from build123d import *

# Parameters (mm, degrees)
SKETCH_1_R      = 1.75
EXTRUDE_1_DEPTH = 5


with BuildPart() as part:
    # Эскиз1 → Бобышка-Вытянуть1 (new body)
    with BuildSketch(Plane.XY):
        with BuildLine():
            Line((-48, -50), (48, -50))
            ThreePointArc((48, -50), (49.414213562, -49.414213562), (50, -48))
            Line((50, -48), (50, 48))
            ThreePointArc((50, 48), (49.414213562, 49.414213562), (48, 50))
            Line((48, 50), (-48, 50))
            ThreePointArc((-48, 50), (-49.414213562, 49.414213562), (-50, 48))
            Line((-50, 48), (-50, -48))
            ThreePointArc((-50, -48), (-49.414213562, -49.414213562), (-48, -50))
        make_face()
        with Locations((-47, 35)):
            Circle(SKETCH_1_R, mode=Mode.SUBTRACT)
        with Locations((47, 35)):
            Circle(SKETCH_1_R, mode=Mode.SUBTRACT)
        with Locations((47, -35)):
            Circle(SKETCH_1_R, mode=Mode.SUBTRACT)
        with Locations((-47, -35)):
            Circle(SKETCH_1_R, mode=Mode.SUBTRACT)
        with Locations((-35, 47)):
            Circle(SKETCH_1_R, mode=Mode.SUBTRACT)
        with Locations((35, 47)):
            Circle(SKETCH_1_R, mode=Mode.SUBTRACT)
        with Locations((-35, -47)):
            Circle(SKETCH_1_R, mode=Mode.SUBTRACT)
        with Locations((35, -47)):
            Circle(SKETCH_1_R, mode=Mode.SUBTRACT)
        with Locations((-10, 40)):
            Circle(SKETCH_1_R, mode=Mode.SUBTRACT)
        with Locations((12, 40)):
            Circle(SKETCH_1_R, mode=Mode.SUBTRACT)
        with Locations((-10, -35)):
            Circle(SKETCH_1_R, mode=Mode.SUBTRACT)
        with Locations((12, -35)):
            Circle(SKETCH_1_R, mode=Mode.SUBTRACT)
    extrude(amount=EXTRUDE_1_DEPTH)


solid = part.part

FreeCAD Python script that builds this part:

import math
import FreeCAD as App
import Part
import Sketcher

V = App.Vector
Q = App.Units.Quantity

doc = App.newDocument("Part")
body = doc.addObject("PartDesign::Body", "Body")

# Sketch on XY plane
sketch1 = body.newObject("Sketcher::SketchObject", "Sketch")
sketch1.AttachmentSupport = (doc.getObject("XY_Plane"), [""])
sketch1.MapMode = "FlatFace"
sketch1.addGeometry([
    Part.LineSegment(V(-48, -50, 0), V(48, -50, 0)),  # 0
    Part.ArcOfCircle(Part.Circle(V(48, -48, 0), V(0, 0, 1), 2), math.radians(-90), math.radians(0)),  # 1
    Part.LineSegment(V(50, -48, 0), V(50, 48, 0)),  # 2
    Part.ArcOfCircle(Part.Circle(V(48, 48, 0), V(0, 0, 1), 2), math.radians(0), math.radians(90)),  # 3
    Part.LineSegment(V(48, 50, 0), V(-48, 50, 0)),  # 4
    Part.ArcOfCircle(Part.Circle(V(-48, 48, 0), V(0, 0, 1), 2), math.radians(90), math.radians(180)),  # 5
    Part.LineSegment(V(-50, 48, 0), V(-50, -48, 0)),  # 6
    Part.ArcOfCircle(Part.Circle(V(-48, -48, 0), V(0, 0, 1), 2), math.radians(-180), math.radians(-90)),  # 7
    Part.Circle(V(-35, -47, 0), V(0, 0, 1), 1.8),  # 8
    Part.Circle(V(-47, -35, 0), V(0, 0, 1), 1.8),  # 9
    Part.Circle(V(-10, -35, 0), V(0, 0, 1), 1.8),  # 10
    Part.Circle(V(12, -35, 0), V(0, 0, 1), 1.8),  # 11
    Part.Circle(V(35, -47, 0), V(0, 0, 1), 1.8),  # 12
    Part.Circle(V(47, -35, 0), V(0, 0, 1), 1.8),  # 13
    Part.Circle(V(-47, 35, 0), V(0, 0, 1), 1.8),  # 14
    Part.Circle(V(-35, 47, 0), V(0, 0, 1), 1.8),  # 15
    Part.Circle(V(-10, 40, 0), V(0, 0, 1), 1.8),  # 16
    Part.Circle(V(12, 40, 0), V(0, 0, 1), 1.8),  # 17
    Part.Circle(V(47, 35, 0), V(0, 0, 1), 1.8),  # 18
    Part.Circle(V(35, 47, 0), V(0, 0, 1), 1.8),  # 19
], False)
sketch1.addConstraint([
    Sketcher.Constraint("Tangent", 0, 2, 1, 1),
    Sketcher.Constraint("Tangent", 1, 2, 2, 1),
    Sketcher.Constraint("Tangent", 2, 2, 3, 1),
    Sketcher.Constraint("Tangent", 3, 2, 4, 1),
    Sketcher.Constraint("Tangent", 4, 2, 5, 1),
    Sketcher.Constraint("Tangent", 5, 2, 6, 1),
    Sketcher.Constraint("Tangent", 6, 2, 7, 1),
    Sketcher.Constraint("Tangent", 7, 2, 0, 1),
    Sketcher.Constraint("Horizontal", 0),
    Sketcher.Constraint("Vertical", 2),
    Sketcher.Constraint("Horizontal", 4),
    Sketcher.Constraint("Vertical", 6),
    Sketcher.Constraint("Equal", 1, 3),
    Sketcher.Constraint("Equal", 3, 5),
    Sketcher.Constraint("Equal", 5, 7),
    Sketcher.Constraint("Equal", 8, 9),
    Sketcher.Constraint("Equal", 9, 10),
    Sketcher.Constraint("Equal", 10, 11),
    Sketcher.Constraint("Equal", 11, 12),
    Sketcher.Constraint("Equal", 12, 13),
    Sketcher.Constraint("Equal", 13, 14),
    Sketcher.Constraint("Equal", 14, 15),
    Sketcher.Constraint("Equal", 15, 16),
    Sketcher.Constraint("Equal", 16, 17),
    Sketcher.Constraint("Equal", 17, 18),
    Sketcher.Constraint("Equal", 18, 19),
    Sketcher.Constraint("Symmetric", 1, 3, 5, 3, -1, 1),
    Sketcher.Constraint("Symmetric", 13, 3, 14, 3, -1, 1),
    Sketcher.Constraint("Symmetric", 12, 3, 15, 3, -1, 1),
    Sketcher.Constraint("Symmetric", 9, 3, 18, 3, -1, 1),
    Sketcher.Constraint("Symmetric", 8, 3, 19, 3, -1, 1),
    Sketcher.Constraint("Symmetric", 8, 3, 12, 3, -2),
    Sketcher.Constraint("Symmetric", 9, 3, 13, 3, -2),
    Sketcher.Constraint("Horizontal", 9, 3, 10, 3),
    Sketcher.Constraint("Horizontal", 10, 3, 11, 3),
    Sketcher.Constraint("Horizontal", 16, 3, 17, 3),
    Sketcher.Constraint("Vertical", 10, 3, 16, 3),
    Sketcher.Constraint("Vertical", 11, 3, 17, 3),
    Sketcher.Constraint("Equal", 4, 2),
    Sketcher.Constraint("Radius", 1, Q("2 mm")),
    Sketcher.Constraint("Diameter", 8, Q("3.5 mm")),
    Sketcher.Constraint("DistanceX", 0, 1, 0, 2, Q("96 mm")),
    Sketcher.Constraint("DistanceX", 8, 3, -1, 1, Q("35 mm")),
    Sketcher.Constraint("DistanceY", 8, 3, -1, 1, Q("47 mm")),
    Sketcher.Constraint("DistanceX", 9, 3, -1, 1, Q("47 mm")),
    Sketcher.Constraint("DistanceY", 9, 3, -1, 1, Q("35 mm")),
    Sketcher.Constraint("DistanceX", 10, 3, -1, 1, Q("10 mm")),
    Sketcher.Constraint("DistanceX", -1, 1, 11, 3, Q("12 mm")),
    Sketcher.Constraint("DistanceY", -1, 1, 16, 3, Q("40 mm")),
])
pad1 = body.newObject("PartDesign::Pad", "Pad")
pad1.Profile = sketch1
pad1.Length = 5

doc.recompute()
